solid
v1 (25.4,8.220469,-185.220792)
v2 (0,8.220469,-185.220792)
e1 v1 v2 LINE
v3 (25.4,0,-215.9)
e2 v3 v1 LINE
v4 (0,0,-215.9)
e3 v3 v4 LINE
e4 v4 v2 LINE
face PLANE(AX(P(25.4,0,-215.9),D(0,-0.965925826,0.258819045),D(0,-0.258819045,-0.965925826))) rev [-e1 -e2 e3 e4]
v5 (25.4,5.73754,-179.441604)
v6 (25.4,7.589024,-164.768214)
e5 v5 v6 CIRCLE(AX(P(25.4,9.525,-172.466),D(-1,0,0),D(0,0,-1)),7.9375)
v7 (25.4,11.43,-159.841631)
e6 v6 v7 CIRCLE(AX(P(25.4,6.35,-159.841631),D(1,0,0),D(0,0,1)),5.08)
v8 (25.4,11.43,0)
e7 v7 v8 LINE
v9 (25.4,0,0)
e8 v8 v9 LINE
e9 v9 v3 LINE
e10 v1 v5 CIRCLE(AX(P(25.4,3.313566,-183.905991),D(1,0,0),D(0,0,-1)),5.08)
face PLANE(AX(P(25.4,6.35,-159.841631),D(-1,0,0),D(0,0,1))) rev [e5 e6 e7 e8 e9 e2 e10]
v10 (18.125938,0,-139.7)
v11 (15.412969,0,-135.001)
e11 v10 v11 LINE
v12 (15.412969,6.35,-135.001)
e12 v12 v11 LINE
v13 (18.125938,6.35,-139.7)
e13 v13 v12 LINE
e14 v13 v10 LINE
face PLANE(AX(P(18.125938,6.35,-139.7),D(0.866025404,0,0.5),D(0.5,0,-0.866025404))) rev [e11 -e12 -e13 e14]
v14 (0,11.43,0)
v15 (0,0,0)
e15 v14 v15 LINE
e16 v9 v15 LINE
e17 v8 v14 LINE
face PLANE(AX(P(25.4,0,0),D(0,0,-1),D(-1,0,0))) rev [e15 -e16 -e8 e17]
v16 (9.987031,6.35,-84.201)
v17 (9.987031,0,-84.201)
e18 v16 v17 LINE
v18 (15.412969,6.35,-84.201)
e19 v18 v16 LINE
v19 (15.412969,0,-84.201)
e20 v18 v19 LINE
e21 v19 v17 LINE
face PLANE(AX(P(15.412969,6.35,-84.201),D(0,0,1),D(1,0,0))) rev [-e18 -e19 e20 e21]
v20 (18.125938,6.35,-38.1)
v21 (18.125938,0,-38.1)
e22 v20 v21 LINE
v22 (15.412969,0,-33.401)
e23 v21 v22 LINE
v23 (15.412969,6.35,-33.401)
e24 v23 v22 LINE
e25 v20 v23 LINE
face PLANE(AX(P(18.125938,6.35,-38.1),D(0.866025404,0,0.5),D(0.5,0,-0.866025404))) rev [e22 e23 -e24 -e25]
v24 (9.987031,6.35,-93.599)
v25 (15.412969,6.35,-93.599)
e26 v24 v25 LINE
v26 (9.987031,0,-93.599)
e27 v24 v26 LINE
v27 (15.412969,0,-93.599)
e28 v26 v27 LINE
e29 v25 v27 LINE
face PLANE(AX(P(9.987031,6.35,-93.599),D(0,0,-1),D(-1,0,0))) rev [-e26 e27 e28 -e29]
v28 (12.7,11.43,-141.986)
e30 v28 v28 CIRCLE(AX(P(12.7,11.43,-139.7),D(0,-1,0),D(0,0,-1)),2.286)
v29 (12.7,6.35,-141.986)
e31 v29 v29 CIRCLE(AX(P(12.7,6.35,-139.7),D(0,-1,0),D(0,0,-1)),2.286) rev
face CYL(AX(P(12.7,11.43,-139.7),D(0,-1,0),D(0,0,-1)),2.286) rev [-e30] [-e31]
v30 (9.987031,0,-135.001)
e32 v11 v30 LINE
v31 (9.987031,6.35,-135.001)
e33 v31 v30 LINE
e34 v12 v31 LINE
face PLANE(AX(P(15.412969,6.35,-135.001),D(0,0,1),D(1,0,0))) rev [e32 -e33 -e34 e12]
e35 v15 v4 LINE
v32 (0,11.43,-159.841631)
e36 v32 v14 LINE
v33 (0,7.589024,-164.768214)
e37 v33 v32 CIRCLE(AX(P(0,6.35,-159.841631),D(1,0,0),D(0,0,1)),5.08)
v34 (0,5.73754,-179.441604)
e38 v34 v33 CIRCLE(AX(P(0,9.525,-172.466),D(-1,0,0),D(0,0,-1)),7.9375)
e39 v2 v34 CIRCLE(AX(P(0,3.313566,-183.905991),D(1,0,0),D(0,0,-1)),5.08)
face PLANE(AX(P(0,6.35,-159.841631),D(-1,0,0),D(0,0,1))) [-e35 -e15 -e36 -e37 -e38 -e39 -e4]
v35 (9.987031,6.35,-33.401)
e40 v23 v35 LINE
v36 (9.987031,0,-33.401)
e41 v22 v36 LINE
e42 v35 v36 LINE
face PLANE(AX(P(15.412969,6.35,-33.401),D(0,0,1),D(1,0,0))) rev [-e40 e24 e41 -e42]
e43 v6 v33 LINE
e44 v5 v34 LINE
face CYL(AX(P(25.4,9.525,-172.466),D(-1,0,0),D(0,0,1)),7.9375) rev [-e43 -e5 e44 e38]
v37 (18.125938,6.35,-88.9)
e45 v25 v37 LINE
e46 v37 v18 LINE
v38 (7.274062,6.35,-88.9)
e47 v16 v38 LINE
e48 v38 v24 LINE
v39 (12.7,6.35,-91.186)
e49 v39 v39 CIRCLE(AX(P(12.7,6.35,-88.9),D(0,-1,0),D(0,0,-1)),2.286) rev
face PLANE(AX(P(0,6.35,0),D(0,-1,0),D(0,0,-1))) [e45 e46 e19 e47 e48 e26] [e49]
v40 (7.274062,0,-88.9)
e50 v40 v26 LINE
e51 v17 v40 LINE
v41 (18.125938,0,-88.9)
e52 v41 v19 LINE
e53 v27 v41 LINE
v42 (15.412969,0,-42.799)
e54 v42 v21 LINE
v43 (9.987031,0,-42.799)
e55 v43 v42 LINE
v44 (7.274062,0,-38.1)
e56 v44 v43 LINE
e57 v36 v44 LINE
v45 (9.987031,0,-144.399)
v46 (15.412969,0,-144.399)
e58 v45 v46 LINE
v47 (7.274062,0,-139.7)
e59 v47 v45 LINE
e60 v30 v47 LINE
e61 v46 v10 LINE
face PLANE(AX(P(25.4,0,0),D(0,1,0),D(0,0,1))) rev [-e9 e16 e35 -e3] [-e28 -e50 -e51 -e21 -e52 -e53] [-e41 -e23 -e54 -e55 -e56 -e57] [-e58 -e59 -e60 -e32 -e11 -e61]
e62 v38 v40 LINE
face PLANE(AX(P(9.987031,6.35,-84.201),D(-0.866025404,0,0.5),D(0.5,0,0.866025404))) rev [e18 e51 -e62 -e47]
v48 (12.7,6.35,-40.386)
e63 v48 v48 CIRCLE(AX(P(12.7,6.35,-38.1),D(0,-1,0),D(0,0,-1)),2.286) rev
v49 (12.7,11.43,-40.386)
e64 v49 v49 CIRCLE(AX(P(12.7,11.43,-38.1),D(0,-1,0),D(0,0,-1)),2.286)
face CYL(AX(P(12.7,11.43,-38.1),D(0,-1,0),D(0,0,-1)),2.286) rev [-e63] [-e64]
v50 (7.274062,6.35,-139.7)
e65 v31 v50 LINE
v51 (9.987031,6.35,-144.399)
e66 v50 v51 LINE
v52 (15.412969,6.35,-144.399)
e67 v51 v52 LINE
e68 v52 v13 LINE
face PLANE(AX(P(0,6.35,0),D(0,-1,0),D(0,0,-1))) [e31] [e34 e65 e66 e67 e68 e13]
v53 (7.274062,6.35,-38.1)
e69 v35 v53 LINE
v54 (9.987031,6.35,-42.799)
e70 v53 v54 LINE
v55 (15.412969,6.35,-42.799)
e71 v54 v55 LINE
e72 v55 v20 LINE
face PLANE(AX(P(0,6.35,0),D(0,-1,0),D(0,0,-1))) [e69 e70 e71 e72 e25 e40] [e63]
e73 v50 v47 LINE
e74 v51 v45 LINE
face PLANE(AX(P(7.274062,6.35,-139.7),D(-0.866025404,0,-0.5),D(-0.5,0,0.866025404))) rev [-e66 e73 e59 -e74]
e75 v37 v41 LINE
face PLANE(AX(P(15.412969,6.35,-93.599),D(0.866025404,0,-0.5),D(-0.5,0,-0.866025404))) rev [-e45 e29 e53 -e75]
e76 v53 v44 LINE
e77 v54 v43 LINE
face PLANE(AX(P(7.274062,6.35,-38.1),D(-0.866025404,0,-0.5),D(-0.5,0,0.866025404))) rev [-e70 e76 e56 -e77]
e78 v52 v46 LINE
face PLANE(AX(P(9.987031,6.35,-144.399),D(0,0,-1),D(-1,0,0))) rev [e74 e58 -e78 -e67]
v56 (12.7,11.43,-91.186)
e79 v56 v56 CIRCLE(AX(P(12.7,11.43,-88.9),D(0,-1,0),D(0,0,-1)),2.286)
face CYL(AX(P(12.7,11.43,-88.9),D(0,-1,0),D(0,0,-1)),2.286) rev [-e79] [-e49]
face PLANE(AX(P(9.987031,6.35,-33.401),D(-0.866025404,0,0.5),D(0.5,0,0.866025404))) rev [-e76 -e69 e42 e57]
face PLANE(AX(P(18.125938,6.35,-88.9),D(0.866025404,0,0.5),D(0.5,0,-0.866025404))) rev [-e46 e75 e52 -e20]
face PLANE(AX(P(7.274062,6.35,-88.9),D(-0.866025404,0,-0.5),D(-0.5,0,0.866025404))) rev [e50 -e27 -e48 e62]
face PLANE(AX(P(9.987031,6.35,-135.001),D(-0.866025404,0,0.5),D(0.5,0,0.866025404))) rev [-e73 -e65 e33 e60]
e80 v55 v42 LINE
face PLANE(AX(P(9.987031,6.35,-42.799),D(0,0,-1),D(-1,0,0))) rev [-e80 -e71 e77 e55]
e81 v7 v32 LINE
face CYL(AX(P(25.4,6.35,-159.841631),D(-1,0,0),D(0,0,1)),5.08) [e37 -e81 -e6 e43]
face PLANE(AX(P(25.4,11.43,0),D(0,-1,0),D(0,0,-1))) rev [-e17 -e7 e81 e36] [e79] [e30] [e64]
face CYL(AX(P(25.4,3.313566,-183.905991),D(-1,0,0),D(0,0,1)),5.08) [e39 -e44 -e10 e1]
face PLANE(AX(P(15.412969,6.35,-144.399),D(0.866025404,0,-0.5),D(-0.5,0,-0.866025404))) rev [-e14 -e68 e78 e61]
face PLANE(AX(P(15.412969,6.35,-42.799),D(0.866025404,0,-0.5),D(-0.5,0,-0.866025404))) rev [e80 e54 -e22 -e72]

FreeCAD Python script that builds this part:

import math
import FreeCAD as App
import Part
import Sketcher
from FreeCAD import Vector
Q = App.Units.Quantity


def add_polygon(sketch, points):
    """Adds a closed chain of lines whose ends are joined by coincident constraints."""
    first, n = sketch.GeometryCount, len(points)
    for a, b in zip(points, points[1:] + points[:1]):
        sketch.addGeometry(Part.LineSegment(App.Vector(*a, 0), App.Vector(*b, 0)), False)
    for i in range(n):
        sketch.addConstraint(Sketcher.Constraint("Coincident", first + i, 2, first + (i + 1) % n, 1))

doc = App.newDocument("Part")
body = doc.addObject("PartDesign::Body", "Body")

# Sketch on YZ plane
sketch1 = body.newObject("Sketcher::SketchObject", "Sketch")
sketch1.AttachmentSupport = (doc.getObject("YZ_Plane"), [""])
sketch1.MapMode = "FlatFace"
sketch1.addGeometry([
    Part.LineSegment(Vector(0, 0, 0), Vector(0, -215.9, 0)),  # 0
    Part.LineSegment(Vector(0, -215.9, 0), Vector(8.220469, -185.220792, 0)),  # 1
    Part.ArcOfCircle(Part.Circle(Vector(3.313566, -183.905991, 0), Vector(0, 0, 1), 5.08), math.radians(-15), math.radians(61.4999)),  # 2
    Part.ArcOfCircle(Part.Circle(Vector(9.525, -172.466, 0), Vector(0, 0, 1), 7.9375), math.radians(104.116981), math.radians(241.4999)),  # 3
    Part.ArcOfCircle(Part.Circle(Vector(6.35, -159.841631, 0), Vector(0, 0, 1), 5.08), math.radians(-75.883019), math.radians(0)),  # 4
    Part.LineSegment(Vector(11.43, -159.841631, 0), Vector(11.43, 0, 0)),  # 5
    Part.LineSegment(Vector(11.43, 0, 0), Vector(0, 0, 0)),  # 6
], False)
sketch1.addConstraint([
    Sketcher.Constraint("Coincident", 0, 2, 1, 1),
    Sketcher.Constraint("Tangent", 1, 2, 2, 1),
    Sketcher.Constraint("Tangent", 2, 2, 3, 2),
    Sketcher.Constraint("Tangent", 3, 1, 4, 1),
    Sketcher.Constraint("Tangent", 4, 2, 5, 1),
    Sketcher.Constraint("Coincident", 5, 2, 6, 1),
    Sketcher.Constraint("Coincident", 6, 2, 0, 1),
    Sketcher.Constraint("Vertical", 0),
    Sketcher.Constraint("Vertical", 5),
    Sketcher.Constraint("Horizontal", 6),
    Sketcher.Constraint("Coincident", 6, 2, -1, 1),
    Sketcher.Constraint("Equal", 2, 4),
    Sketcher.Constraint("Radius", 2, Q("0.2 in")),
    Sketcher.Constraint("DistanceY", 0, 2, 0, 1, Q("8.5 in")),
    Sketcher.Constraint("Angle", 1, Q("75 deg")),
    Sketcher.Constraint("Radius", 3, Q("0.3125 in")),
    Sketcher.Constraint("DistanceX", 6, 2, 6, 1, Q("0.45 in")),
    Sketcher.Constraint("DistanceY", 3, 3, -1, 1, Q("6.79 in")),
    Sketcher.Constraint("DistanceX", -1, 1, 3, 3, Q("0.375 in")),
])
pad1 = body.newObject("PartDesign::Pad", "Pad")
pad1.Profile = sketch1
pad1.Length = Q("1 in")

# Sketch on XZ plane
sketch2 = body.newObject("Sketcher::SketchObject", "Sketch001")
sketch2.AttachmentSupport = (doc.getObject("XZ_Plane"), [""])
sketch2.MapMode = "FlatFace"
sketch2.addGeometry([
    Part.Circle(Vector(12.7, -139.7, 0), Vector(0, 0, 1), 2.286),
    Part.Circle(Vector(12.7, -88.9, 0), Vector(0, 0, 1), 2.286),
    Part.Circle(Vector(12.7, -38.1, 0), Vector(0, 0, 1), 2.286),
], False)
sketch2.addConstraint([
    Sketcher.Constraint("Equal", 0, 1),
    Sketcher.Constraint("Equal", 1, 2),
    Sketcher.Constraint("Vertical", 0, 3, 1, 3),
    Sketcher.Constraint("Vertical", 1, 3, 2, 3),
    Sketcher.Constraint("Diameter", 0, Q("0.18 in")),
    Sketcher.Constraint("DistanceY", 0, 3, 1, 3, Q("2 in")),
    Sketcher.Constraint("DistanceY", 1, 3, 2, 3, Q("2 in")),
    Sketcher.Constraint("DistanceX", -1, 1, 0, 3, Q("0.5 in")),
    Sketcher.Constraint("DistanceY", 0, 3, -1, 1, Q("5.5 in")),
])
pocket1 = body.newObject("PartDesign::Pocket", "Pocket")
pocket1.Profile = sketch2
pocket1.Type = "ThroughAll"

# Sketch on XZ plane
sketch3 = body.newObject("Sketcher::SketchObject", "Sketch002")
sketch3.AttachmentSupport = (doc.getObject("XZ_Plane"), [""])
sketch3.MapMode = "FlatFace"
add_polygon(sketch3, [(18.125938, -139.7), (15.412969, -135.001), (9.987031, -135.001), (7.274062, -139.7), (9.987031, -144.399), (15.412969, -144.399)])  # lines 0-5
add_polygon(sketch3, [(18.125938, -88.9), (15.412969, -84.201), (9.987031, -84.201), (7.274062, -88.9), (9.987031, -93.599), (15.412969, -93.599)])  # lines 6-11
add_polygon(sketch3, [(18.125938, -38.1), (15.412969, -33.401), (9.987031, -33.401), (7.274062, -38.1), (9.987031, -42.799), (15.412969, -42.799)])  # lines 12-17
sketch3.addConstraint([
    Sketcher.Constraint("Horizontal", 1),
    Sketcher.Constraint("Horizontal", 4),
    Sketcher.Constraint("Horizontal", 7),
    Sketcher.Constraint("Horizontal", 10),
    Sketcher.Constraint("Horizontal", 13),
    Sketcher.Constraint("Horizontal", 16),
    Sketcher.Constraint("Parallel", 0, 3),
    Sketcher.Constraint("Parallel", 2, 5),
    Sketcher.Constraint("Parallel", 3, 6),
    Sketcher.Constraint("Parallel", 5, 8),
    Sketcher.Constraint("Parallel", 6, 9),
    Sketcher.Constraint("Parallel", 8, 11),
    Sketcher.Constraint("Parallel", 9, 12),
    Sketcher.Constraint("Parallel", 11, 14),
    Sketcher.Constraint("Parallel", 12, 15),
    Sketcher.Constraint("Parallel", 14, 17),
    Sketcher.Constraint("Horizontal", 2, 2, 5, 2),
    Sketcher.Constraint("Horizontal", 8, 2, 11, 2),
    Sketcher.Constraint("Horizontal", 14, 2, 17, 2),
    Sketcher.Constraint("Vertical", 1, 2, 3, 2),
    Sketcher.Constraint("Vertical", 0, 2, 4, 2),
    Sketcher.Constraint("Vertical", 4, 2, 6, 2),
    Sketcher.Constraint("Vertical", 3, 2, 7, 2),
    Sketcher.Constraint("Vertical", 2, 2, 8, 2),
    Sketcher.Constraint("Vertical", 7, 2, 9, 2),
    Sketcher.Constraint("Vertical", 10, 2, 12, 2),
    Sketcher.Constraint("Vertical", 9, 2, 13, 2),
    Sketcher.Constraint("Vertical", 8, 2, 14, 2),
    Sketcher.Constraint("Vertical", 13, 2, 15, 2),
    Sketcher.Constraint("Angle", 0, Q("120 deg")),
    Sketcher.Constraint("DistanceY", 0, 2, 6, 2, Q("2 in")),
    Sketcher.Constraint("DistanceY", 6, 2, 12, 2, Q("2 in")),
    Sketcher.Constraint("DistanceY", 2, 2, -1, 1, Q("5.5 in")),
    Sketcher.Constraint("DistanceY", 3, 2, 1, 2, Q("0.37 in")),
    Sketcher.Constraint("DistanceX", 1, 2, 1, 1, 5.425938),
    Sketcher.Constraint("DistanceX", -1, 1, 0, 2, 15.412969),
])
pocket2 = body.newObject("PartDesign::Pocket", "Pocket001")
pocket2.Profile = sketch3
pocket2.Length = Q("0.25 in")

doc.recompute()
